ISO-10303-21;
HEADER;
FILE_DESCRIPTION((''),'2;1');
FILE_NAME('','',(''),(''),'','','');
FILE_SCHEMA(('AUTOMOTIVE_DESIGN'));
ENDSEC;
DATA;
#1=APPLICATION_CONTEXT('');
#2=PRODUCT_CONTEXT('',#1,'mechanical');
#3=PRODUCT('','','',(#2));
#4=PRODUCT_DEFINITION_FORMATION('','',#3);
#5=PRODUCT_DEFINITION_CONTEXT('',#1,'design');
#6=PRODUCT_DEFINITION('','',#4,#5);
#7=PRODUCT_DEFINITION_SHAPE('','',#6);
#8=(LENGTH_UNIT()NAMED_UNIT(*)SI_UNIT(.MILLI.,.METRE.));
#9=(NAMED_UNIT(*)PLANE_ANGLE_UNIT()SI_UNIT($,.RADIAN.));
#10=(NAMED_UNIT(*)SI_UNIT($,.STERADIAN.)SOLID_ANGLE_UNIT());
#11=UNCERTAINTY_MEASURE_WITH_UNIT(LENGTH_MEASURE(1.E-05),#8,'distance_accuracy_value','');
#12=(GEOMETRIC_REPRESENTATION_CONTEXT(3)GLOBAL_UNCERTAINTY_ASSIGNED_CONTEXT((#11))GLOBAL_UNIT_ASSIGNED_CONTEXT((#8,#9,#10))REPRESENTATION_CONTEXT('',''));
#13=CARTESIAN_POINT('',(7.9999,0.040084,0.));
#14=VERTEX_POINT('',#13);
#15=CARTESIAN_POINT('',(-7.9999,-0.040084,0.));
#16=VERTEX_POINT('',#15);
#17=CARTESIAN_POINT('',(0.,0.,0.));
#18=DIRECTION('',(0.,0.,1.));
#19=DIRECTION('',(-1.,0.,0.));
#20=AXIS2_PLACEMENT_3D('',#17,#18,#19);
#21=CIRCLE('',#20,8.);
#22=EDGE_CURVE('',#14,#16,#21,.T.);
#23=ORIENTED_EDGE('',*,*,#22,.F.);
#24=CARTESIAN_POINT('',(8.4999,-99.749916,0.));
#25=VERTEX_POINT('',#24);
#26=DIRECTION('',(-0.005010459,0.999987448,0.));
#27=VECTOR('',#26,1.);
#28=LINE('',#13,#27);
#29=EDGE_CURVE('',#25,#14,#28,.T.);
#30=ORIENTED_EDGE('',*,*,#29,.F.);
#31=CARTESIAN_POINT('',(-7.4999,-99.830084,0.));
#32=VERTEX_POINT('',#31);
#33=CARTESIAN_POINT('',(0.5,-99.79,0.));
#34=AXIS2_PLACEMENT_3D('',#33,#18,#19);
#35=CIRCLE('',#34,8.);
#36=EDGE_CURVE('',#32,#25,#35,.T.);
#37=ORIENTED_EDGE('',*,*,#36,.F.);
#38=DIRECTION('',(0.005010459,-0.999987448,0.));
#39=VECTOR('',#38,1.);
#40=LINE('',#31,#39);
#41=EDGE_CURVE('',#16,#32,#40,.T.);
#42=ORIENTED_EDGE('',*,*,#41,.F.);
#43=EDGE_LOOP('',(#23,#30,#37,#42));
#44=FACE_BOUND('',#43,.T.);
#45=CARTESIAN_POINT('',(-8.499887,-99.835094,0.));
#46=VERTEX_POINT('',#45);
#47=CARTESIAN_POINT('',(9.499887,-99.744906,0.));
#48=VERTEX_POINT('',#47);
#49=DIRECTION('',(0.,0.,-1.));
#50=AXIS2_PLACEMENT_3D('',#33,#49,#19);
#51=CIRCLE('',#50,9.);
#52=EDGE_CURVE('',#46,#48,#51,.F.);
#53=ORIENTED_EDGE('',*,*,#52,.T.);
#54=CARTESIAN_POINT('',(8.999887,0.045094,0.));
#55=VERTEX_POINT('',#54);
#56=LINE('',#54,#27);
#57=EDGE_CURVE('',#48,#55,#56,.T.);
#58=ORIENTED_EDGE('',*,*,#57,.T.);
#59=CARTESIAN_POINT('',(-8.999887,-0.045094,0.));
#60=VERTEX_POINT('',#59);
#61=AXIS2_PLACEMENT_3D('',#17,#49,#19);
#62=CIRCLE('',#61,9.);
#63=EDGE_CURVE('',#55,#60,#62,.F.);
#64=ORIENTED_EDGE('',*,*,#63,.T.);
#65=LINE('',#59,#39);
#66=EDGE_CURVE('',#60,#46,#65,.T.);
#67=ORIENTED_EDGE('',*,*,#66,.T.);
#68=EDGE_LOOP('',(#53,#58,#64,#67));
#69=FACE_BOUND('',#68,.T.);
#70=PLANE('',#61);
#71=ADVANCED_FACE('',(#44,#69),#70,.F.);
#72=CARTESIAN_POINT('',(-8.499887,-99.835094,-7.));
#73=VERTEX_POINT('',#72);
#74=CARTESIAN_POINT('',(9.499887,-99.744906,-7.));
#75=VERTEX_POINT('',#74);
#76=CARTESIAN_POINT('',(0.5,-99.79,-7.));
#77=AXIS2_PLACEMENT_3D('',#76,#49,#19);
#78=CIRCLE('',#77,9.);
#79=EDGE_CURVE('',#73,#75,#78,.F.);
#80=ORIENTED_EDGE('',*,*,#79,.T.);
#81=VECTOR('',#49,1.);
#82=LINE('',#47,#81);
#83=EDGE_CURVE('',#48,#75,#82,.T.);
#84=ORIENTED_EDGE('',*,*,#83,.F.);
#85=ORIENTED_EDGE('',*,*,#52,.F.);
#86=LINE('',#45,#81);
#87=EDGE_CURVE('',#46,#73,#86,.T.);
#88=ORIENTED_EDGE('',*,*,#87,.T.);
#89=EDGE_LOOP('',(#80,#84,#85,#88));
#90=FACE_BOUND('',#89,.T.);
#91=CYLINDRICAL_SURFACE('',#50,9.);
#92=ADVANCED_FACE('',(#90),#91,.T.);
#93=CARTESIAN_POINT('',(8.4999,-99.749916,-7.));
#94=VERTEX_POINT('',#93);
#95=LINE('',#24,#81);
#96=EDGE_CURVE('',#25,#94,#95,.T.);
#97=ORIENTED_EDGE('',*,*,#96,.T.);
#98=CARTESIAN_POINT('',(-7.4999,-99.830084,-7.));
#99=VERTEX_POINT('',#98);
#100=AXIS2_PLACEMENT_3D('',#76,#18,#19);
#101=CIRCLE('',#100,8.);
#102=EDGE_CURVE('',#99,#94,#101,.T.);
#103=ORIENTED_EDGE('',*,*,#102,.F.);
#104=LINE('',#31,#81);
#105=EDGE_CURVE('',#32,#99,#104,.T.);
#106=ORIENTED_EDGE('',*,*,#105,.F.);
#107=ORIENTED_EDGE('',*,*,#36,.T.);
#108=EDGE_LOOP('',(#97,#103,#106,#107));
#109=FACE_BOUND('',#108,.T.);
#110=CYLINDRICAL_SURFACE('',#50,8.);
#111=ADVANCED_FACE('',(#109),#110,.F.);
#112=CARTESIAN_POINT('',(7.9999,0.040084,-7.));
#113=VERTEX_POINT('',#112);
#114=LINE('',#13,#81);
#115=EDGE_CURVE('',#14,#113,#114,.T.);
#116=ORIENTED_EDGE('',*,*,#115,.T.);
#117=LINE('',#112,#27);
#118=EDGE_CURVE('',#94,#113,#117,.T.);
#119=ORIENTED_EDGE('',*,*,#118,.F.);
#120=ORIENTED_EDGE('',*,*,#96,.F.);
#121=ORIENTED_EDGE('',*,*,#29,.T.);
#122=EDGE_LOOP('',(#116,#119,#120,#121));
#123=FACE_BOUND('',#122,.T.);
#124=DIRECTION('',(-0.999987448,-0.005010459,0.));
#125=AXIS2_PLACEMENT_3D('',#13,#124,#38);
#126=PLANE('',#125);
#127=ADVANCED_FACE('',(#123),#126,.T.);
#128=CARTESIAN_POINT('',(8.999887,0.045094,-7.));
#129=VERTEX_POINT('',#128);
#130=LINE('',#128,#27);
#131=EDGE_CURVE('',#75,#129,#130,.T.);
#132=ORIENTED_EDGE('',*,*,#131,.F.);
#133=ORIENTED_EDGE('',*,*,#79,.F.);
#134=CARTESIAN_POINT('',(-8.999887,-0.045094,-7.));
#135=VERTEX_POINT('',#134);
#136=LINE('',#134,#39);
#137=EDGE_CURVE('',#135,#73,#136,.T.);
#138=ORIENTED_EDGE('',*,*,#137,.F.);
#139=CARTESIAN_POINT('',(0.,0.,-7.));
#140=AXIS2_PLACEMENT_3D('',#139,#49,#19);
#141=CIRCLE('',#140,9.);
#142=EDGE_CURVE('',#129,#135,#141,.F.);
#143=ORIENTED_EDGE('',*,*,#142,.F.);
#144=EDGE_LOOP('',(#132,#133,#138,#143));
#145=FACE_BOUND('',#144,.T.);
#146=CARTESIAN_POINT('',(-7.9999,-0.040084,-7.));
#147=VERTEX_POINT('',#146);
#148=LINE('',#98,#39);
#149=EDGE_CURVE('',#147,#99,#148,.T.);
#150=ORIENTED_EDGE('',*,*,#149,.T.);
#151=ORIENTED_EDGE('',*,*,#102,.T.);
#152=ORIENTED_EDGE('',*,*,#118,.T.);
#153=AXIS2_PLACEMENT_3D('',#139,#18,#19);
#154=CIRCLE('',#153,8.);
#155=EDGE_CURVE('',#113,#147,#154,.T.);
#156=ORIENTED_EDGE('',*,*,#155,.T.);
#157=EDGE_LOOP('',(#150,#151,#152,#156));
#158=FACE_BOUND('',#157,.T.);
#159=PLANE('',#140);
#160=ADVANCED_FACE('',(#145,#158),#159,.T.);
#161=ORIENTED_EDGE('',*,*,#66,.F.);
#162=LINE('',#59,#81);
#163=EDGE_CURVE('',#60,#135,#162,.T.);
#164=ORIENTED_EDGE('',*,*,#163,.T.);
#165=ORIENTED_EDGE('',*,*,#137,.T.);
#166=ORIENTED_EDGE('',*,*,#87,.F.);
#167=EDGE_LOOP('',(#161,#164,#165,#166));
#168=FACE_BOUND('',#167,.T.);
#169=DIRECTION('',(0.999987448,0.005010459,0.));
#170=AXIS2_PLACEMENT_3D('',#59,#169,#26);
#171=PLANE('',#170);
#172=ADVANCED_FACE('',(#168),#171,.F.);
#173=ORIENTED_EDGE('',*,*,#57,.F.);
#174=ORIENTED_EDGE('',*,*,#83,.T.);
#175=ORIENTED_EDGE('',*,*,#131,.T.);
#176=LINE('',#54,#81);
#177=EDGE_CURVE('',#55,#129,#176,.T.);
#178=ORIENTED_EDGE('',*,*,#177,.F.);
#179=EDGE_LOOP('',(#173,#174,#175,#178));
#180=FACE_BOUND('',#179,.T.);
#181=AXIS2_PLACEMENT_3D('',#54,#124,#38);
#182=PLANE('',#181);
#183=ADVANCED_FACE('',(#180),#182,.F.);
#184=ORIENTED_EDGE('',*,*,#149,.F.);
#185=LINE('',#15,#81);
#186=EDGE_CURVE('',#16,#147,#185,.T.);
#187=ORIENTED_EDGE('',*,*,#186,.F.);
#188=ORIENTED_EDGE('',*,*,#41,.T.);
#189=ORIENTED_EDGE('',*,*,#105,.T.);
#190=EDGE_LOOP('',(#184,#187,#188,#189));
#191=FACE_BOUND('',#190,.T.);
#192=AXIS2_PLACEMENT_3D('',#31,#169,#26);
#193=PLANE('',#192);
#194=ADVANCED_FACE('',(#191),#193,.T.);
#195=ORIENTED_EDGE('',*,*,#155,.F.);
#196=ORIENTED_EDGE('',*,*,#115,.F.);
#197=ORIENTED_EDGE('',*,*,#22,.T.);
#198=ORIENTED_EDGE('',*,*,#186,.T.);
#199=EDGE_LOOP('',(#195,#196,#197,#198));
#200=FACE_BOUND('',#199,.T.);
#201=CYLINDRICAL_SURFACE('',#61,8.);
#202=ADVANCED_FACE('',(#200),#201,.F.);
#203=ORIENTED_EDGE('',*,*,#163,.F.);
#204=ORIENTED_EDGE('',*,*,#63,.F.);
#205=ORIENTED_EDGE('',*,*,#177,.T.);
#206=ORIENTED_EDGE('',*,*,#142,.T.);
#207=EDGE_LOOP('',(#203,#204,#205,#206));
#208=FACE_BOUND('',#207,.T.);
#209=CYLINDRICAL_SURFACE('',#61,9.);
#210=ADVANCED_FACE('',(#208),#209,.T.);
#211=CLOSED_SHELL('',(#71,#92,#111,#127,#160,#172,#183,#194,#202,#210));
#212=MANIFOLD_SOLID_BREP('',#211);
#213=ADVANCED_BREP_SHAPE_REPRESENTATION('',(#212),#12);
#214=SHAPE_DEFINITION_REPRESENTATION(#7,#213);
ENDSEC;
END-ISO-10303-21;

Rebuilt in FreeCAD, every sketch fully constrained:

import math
import FreeCAD as App
import Part
import Sketcher
Q = App.Units.Quantity

doc = App.newDocument("Part")
params = doc.addObject("Spreadsheet::Sheet", "Params")
for row, (alias, value) in enumerate([
    ("sketch1_radius", "9 mm"),
    ("sketch1_radius2", "8 mm"),
    ("pad1_length", "7 mm"),
], start=1):
    params.set(f"A{row}", alias)
    params.set(f"B{row}", "=" + value)
    params.setAlias(f"B{row}", alias)

body = doc.addObject("PartDesign::Body", "Body")

# Sketch on XY plane
sketch1 = body.newObject("Sketcher::SketchObject", "Sketch")
sketch1.AttachmentSupport = (doc.getObject("XY_Plane"), [""])
sketch1.MapMode = "FlatFace"
sketch1.AttachmentOffset = App.Placement(App.Vector(0, 0, -3.5), App.Rotation())
sketch1.addGeometry(Part.LineSegment(App.Vector(-9, 0, 0), App.Vector(-8, -100, 0)), False)
sketch1.addGeometry(Part.ArcOfCircle(Part.Circle(App.Vector(0, -100, 0), App.Vector(0, 0, 1), 9), math.radians(-180), math.radians(0)), False)
sketch1.addGeometry(Part.LineSegment(App.Vector(9, -100, 0), App.Vector(9, 0, 0)), False)
sketch1.addGeometry(Part.ArcOfCircle(Part.Circle(App.Vector(0, 0, 0), App.Vector(0, 0, 1), 9), math.radians(0), math.radians(180)), False)
sketch1.addGeometry(Part.LineSegment(App.Vector(-7, -100, 0), App.Vector(-8, 0, 0)), False)
sketch1.addGeometry(Part.ArcOfCircle(Part.Circle(App.Vector(0, 0, 0), App.Vector(0, 0, 1), 8), math.radians(0), math.radians(180)), False)
sketch1.addGeometry(Part.LineSegment(App.Vector(8, 0, 0), App.Vector(8, -100, 0)), False)
sketch1.addGeometry(Part.ArcOfCircle(Part.Circle(App.Vector(0, -100, 0), App.Vector(0, 0, 1), 8), math.radians(-180), math.radians(0)), False)
sketch1.addConstraint(Sketcher.Constraint("Tangent", 0, 2, 1, 1))
sketch1.addConstraint(Sketcher.Constraint("Tangent", 1, 2, 2, 1))
sketch1.addConstraint(Sketcher.Constraint("Tangent", 2, 2, 3, 1))
sketch1.addConstraint(Sketcher.Constraint("Tangent", 3, 2, 0, 1))
sketch1.addConstraint(Sketcher.Constraint("Tangent", 4, 2, 5, 2))
sketch1.addConstraint(Sketcher.Constraint("Tangent", 5, 1, 6, 1))
sketch1.addConstraint(Sketcher.Constraint("Tangent", 6, 2, 7, 2))
sketch1.addConstraint(Sketcher.Constraint("Tangent", 7, 1, 4, 1))
sketch1.addConstraint(Sketcher.Constraint("Coincident", 3, 3, -1, 1))
sketch1.addConstraint(Sketcher.Constraint("Coincident", 5, 3, -1, 1))
sketch1.addConstraint(Sketcher.Constraint("Coincident", 7, 3, 1, 3))
sketch1.addConstraint(Sketcher.Constraint("Equal", 1, 3))
sketch1.addConstraint(Sketcher.Constraint("Equal", 5, 7))
sketch1.addConstraint(Sketcher.Constraint("Radius", 1, Q("9 mm")))
sketch1.addConstraint(Sketcher.Constraint("Radius", 5, Q("8 mm")))
sketch1.addConstraint(Sketcher.Constraint("DistanceX", -1, 1, 1, 3, Q("0.5 mm")))
sketch1.addConstraint(Sketcher.Constraint("DistanceY", 1, 3, -1, 1, Q("99.79 mm")))
sketch1.setExpression("Constraints[13]", "Params.sketch1_radius")
sketch1.setExpression("Constraints[14]", "Params.sketch1_radius2")
pad1 = body.newObject("PartDesign::Pad", "Pad")
pad1.Profile = sketch1
pad1.setExpression("Length", "Params.pad1_length")
pad1.Midplane = True

doc.recompute()
